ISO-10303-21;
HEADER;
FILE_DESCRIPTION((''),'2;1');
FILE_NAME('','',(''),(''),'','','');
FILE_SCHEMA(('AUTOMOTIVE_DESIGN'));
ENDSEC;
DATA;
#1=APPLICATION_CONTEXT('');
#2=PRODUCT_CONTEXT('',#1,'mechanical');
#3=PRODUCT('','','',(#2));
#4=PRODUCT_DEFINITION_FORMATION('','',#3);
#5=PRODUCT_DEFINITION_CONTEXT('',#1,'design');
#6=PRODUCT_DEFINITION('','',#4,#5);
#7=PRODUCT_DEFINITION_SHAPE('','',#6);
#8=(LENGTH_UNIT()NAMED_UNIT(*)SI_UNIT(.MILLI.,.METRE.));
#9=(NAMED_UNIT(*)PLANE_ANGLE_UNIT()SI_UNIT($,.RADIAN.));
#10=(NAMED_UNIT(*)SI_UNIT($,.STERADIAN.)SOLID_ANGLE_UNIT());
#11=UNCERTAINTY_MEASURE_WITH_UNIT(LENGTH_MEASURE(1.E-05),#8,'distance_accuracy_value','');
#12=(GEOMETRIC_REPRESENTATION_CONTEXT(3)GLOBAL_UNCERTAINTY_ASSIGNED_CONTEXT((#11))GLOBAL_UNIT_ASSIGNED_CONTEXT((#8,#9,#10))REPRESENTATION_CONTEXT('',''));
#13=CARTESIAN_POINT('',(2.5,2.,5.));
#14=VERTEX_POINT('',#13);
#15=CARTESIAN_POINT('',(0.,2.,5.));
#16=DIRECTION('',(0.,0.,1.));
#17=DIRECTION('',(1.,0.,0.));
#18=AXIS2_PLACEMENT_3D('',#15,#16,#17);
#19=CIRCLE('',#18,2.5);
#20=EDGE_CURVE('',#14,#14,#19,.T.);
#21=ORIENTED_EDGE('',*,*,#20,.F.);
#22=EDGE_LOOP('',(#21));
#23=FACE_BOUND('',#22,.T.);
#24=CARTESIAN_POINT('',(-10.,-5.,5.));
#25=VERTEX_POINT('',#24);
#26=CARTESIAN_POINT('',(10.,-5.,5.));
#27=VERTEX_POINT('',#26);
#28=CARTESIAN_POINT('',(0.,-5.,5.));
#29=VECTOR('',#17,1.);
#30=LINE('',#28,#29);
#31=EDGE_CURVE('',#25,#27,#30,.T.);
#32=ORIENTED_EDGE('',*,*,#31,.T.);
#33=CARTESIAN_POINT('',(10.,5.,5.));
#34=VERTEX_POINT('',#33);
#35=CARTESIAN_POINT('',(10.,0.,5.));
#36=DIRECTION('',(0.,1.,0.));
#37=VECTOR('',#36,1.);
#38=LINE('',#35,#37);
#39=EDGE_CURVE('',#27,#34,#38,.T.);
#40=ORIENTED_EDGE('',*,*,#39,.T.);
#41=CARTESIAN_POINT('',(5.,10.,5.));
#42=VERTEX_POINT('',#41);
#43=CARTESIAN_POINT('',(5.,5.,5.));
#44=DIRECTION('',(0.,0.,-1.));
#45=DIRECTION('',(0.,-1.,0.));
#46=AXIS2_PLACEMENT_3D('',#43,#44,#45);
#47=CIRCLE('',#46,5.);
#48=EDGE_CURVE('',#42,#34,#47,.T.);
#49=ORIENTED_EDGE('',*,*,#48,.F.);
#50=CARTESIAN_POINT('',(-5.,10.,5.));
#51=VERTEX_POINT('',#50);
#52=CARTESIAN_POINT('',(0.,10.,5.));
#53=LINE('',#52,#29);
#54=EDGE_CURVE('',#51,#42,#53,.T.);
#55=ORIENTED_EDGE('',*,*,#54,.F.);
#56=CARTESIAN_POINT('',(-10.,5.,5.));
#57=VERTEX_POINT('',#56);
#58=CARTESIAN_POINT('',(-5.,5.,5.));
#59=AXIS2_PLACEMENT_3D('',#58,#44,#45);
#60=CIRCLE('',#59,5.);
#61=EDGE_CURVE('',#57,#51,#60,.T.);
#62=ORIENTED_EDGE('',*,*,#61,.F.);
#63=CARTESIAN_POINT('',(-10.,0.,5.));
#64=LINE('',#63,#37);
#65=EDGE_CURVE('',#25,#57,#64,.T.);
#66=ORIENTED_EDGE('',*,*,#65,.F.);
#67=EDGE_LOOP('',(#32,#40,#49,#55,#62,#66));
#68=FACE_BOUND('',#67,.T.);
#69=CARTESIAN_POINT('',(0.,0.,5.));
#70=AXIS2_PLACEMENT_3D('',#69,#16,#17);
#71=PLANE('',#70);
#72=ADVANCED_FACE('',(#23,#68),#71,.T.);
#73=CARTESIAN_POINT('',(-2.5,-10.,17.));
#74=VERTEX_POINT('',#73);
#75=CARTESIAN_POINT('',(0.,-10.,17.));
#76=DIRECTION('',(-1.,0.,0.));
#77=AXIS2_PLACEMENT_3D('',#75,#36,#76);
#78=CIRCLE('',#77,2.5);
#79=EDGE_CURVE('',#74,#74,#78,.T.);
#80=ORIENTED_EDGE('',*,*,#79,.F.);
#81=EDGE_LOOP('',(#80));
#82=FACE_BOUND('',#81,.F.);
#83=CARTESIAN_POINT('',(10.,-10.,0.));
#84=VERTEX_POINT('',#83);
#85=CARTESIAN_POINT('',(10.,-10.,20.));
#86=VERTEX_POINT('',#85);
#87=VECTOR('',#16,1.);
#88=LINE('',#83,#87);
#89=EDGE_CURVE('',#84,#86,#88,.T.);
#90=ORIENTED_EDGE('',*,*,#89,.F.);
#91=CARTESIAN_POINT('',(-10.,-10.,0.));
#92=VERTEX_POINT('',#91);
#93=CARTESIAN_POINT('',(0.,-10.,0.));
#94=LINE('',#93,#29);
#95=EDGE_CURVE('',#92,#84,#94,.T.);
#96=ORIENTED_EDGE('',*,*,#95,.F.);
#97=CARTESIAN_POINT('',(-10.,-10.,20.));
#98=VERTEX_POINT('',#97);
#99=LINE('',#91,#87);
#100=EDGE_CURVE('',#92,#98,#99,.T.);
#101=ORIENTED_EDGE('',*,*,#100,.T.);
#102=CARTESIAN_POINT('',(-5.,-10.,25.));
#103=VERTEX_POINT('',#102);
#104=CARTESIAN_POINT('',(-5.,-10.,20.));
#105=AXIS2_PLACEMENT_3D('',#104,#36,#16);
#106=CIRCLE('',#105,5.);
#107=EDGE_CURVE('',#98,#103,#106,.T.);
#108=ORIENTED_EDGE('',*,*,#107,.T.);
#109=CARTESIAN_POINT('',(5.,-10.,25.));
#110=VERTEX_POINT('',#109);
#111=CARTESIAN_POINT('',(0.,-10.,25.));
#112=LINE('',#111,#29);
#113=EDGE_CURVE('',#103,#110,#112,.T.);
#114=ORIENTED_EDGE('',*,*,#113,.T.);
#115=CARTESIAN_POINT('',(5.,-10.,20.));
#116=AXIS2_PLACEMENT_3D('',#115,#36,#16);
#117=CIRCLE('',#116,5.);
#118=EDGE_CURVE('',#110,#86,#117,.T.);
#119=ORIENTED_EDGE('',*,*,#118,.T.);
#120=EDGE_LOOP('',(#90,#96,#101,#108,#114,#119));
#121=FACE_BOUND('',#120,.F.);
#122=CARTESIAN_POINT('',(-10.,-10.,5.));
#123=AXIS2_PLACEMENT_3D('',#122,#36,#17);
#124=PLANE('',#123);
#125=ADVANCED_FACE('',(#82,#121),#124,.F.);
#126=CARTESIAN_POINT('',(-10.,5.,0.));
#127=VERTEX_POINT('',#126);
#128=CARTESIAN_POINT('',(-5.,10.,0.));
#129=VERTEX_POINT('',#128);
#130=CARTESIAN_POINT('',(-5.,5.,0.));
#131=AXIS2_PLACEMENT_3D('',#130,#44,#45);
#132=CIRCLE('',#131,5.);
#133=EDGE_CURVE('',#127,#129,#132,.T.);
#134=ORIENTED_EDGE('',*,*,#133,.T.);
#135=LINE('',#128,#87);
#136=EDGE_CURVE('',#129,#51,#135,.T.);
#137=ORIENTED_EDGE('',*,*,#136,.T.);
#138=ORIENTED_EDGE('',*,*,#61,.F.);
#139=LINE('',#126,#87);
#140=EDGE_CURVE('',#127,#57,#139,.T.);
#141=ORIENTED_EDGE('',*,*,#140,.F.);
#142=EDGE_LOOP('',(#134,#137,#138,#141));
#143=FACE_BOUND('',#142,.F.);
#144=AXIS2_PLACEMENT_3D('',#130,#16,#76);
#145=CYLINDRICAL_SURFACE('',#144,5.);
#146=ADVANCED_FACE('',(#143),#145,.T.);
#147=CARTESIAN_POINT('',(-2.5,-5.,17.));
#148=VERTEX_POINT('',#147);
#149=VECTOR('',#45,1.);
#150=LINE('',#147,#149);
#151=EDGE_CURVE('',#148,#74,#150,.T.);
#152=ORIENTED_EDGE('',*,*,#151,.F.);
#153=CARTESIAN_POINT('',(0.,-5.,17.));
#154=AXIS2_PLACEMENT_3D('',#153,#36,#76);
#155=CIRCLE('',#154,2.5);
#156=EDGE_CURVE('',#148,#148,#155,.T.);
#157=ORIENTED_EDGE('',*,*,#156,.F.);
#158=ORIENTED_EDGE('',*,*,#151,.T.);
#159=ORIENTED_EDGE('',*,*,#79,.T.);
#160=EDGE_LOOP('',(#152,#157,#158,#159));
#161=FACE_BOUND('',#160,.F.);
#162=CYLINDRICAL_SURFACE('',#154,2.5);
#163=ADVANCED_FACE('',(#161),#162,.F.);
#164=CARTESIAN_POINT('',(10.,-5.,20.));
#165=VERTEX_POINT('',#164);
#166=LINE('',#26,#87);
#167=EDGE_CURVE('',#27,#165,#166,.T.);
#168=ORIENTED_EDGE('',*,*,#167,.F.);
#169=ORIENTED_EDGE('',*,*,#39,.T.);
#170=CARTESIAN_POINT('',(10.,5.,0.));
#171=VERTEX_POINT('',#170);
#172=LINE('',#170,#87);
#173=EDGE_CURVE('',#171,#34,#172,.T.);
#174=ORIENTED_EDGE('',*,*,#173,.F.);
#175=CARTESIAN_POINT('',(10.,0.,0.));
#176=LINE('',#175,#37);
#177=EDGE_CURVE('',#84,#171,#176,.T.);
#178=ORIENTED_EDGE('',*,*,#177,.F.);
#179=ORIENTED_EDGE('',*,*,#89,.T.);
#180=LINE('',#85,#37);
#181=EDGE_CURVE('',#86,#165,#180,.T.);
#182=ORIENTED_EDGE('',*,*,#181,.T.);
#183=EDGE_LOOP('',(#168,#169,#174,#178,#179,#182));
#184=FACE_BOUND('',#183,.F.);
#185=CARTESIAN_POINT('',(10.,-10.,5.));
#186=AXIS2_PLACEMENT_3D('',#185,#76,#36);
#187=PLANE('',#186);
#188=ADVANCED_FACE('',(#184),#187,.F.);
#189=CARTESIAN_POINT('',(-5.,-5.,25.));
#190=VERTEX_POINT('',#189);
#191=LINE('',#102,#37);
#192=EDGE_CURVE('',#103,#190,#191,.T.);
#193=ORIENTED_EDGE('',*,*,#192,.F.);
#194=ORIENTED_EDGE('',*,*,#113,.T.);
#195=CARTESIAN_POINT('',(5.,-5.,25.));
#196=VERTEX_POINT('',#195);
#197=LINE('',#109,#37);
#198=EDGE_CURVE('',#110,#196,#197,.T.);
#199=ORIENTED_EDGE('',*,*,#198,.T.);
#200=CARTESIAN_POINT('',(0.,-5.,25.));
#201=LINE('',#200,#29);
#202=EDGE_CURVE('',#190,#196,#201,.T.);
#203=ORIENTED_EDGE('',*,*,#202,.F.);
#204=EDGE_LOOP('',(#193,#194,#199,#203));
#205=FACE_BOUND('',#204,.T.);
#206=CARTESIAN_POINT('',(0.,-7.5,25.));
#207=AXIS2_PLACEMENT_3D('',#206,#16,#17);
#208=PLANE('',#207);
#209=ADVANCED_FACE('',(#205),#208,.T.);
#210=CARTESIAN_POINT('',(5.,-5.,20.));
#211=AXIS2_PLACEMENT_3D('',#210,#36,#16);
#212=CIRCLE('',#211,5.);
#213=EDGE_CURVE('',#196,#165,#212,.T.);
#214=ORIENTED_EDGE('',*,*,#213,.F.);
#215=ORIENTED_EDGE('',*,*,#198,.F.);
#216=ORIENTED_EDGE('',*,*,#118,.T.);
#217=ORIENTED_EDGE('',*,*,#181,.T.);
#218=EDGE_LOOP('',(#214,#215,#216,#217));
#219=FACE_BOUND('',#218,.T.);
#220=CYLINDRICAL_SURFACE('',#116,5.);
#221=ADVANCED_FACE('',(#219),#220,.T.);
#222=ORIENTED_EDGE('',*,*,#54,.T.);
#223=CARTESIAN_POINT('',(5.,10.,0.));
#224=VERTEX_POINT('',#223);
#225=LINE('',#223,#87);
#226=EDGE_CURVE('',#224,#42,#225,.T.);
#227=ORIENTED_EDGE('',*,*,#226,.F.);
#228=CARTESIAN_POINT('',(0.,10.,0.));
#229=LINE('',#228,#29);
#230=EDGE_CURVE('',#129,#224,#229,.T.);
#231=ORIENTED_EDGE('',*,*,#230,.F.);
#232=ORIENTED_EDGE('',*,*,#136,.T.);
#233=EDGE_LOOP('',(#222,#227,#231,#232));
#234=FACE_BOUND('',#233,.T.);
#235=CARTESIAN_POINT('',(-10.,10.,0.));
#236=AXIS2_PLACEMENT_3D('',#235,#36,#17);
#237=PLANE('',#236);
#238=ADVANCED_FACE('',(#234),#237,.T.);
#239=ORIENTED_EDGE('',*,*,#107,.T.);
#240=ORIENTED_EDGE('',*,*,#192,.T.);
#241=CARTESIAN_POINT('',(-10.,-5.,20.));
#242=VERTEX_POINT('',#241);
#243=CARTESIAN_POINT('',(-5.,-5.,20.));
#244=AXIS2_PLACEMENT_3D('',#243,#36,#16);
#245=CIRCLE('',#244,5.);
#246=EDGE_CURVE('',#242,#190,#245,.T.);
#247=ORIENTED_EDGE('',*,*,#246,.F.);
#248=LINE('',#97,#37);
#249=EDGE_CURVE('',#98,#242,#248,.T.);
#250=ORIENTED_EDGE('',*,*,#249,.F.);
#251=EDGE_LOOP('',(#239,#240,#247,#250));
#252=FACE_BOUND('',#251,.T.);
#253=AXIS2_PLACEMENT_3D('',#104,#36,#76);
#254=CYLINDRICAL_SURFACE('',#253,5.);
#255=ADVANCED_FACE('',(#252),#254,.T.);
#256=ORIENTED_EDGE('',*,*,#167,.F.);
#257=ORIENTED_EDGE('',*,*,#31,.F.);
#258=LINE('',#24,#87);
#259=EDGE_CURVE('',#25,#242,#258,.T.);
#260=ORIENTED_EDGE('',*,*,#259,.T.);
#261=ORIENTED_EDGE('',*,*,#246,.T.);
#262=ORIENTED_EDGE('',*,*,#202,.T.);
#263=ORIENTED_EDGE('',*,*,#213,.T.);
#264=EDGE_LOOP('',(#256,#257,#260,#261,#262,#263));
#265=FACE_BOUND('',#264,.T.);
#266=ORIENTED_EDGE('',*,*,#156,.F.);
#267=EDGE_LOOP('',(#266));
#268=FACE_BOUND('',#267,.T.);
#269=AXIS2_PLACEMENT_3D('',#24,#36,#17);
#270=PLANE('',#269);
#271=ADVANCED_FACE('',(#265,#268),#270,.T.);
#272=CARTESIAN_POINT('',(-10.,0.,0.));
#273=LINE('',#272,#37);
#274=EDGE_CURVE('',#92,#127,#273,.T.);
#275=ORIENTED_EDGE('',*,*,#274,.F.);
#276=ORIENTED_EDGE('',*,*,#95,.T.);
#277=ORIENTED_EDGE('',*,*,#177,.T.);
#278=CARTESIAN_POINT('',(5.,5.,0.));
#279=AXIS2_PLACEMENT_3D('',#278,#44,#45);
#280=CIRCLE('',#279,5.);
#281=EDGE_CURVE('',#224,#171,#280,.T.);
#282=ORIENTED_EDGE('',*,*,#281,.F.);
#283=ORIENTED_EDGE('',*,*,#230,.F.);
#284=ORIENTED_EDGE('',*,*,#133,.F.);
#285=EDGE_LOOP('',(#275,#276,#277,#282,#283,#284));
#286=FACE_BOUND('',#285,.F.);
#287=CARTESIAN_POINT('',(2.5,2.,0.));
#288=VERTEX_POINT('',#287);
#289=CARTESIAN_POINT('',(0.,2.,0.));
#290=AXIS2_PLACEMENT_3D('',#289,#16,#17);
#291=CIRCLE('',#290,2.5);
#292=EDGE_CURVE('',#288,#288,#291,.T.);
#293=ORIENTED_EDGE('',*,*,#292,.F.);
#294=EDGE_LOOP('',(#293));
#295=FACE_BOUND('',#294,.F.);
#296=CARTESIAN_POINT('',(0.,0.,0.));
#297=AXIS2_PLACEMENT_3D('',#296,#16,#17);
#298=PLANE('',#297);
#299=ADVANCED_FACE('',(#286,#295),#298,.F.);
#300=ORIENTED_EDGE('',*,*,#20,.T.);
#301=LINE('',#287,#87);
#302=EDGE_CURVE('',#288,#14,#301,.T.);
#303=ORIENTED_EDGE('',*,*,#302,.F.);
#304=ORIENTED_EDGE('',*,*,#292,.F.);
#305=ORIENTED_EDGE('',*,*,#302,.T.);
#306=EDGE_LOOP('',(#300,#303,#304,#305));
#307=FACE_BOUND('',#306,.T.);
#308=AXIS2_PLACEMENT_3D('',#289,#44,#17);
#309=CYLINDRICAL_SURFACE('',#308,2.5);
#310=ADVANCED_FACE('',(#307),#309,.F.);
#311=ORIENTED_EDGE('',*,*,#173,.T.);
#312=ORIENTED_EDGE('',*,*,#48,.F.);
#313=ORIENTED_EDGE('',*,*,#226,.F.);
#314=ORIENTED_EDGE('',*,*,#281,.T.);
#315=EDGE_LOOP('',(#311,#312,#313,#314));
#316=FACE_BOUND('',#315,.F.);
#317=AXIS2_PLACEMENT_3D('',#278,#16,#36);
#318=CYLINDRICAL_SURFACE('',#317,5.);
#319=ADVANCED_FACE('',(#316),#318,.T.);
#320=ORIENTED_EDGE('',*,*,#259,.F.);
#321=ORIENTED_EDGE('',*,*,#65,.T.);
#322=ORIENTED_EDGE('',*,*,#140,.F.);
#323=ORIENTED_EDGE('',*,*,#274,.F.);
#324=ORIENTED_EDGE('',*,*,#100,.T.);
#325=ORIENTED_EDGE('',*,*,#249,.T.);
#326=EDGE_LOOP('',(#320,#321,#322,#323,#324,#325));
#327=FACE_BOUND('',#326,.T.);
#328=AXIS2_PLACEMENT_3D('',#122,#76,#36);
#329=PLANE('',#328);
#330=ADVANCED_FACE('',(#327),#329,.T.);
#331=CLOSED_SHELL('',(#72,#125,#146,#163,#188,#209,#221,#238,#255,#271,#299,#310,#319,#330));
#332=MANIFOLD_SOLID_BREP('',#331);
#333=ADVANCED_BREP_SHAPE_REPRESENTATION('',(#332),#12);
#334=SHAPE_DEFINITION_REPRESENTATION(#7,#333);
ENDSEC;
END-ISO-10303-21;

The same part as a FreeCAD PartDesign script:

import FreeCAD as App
import Part
import Sketcher

V = App.Vector
Q = App.Units.Quantity


def edges_at(feature, points):
    """Names of the edges that pass closest to the given points."""
    edges = feature.Shape.Edges
    near = lambda p: min(range(len(edges)), key=lambda i: edges[i].distToShape(Part.Vertex(*p))[0])
    return sorted({f"Edge{near(p) + 1}" for p in points})

doc = App.newDocument("Part")
params = doc.addObject("Spreadsheet::Sheet", "Params")
for row, (alias, value) in enumerate([
    ("sketch1_diameter", "5 mm"),
    ("sketch1_width", "20 mm"),
    ("pad1_length", "5 mm"),
    ("sketch2_width", "20 mm"),
    ("sketch2_height", "5 mm"),
    ("pad2_length", "20 mm"),
    ("sketch3_diameter", "5 mm"),
    ("fillet_radius", "5 mm"),
], start=1):
    params.set(f"A{row}", alias)
    params.set(f"B{row}", "=" + value)
    params.setAlias(f"B{row}", alias)

body = doc.addObject("PartDesign::Body", "Body")

sketch1 = doc.addObject("Sketcher::SketchObject", "Sketch")
body.addObject(sketch1)
sketch1.AttachmentSupport = (doc.XY_Plane, [""])
sketch1.MapMode = "FlatFace"
sketch1.addGeometry([
    Part.LineSegment(V(-10, 10, 0), V(-10, -10, 0)),
    Part.LineSegment(V(-10, -10, 0), V(10, -10, 0)),
    Part.LineSegment(V(10, -10, 0), V(10, 10, 0)),
    Part.LineSegment(V(10, 10, 0), V(-10, 10, 0)),
    Part.Circle(V(0, 2, 0), V(0, 0, 1), 2.5),
], False)
sketch1.addConstraint([
    Sketcher.Constraint("Coincident", 0, 2, 1, 1),
    Sketcher.Constraint("Coincident", 1, 2, 2, 1),
    Sketcher.Constraint("Coincident", 2, 2, 3, 1),
    Sketcher.Constraint("Coincident", 3, 2, 0, 1),
    Sketcher.Constraint("Vertical", 0),
    Sketcher.Constraint("Horizontal", 1),
    Sketcher.Constraint("Vertical", 2),
    Sketcher.Constraint("Horizontal", 3),
    Sketcher.Constraint("Symmetric", 0, 2, 2, 2, -1, 1),
    Sketcher.Constraint("PointOnObject", 4, 3, -2),
    Sketcher.Constraint("Equal", 3, 0),
    Sketcher.Constraint("Diameter", 4, Q("5 mm")),
    Sketcher.Constraint("DistanceX", 1, 1, 1, 2, Q("20 mm")),
    Sketcher.Constraint("DistanceY", -1, 1, 4, 3, Q("2 mm")),
])
sketch1.setExpression("Constraints[11]", "Params.sketch1_diameter")
sketch1.setExpression("Constraints[12]", "Params.sketch1_width")
pad1 = doc.addObject("PartDesign::Pad", "Pad")
body.addObject(pad1)
pad1.Profile = sketch1
pad1.setExpression("Length", "Params.pad1_length")

sketch2 = doc.addObject("Sketcher::SketchObject", "Sketch001")
body.addObject(sketch2)
sketch2.AttachmentSupport = (doc.XY_Plane, [""])
sketch2.MapMode = "FlatFace"
sketch2.AttachmentOffset = App.Placement(V(0, 0, 5), App.Rotation())
sketch2.addGeometry([
    Part.LineSegment(V(-10, -5, 0), V(-10, -10, 0)),
    Part.LineSegment(V(-10, -10, 0), V(10, -10, 0)),
    Part.LineSegment(V(10, -10, 0), V(10, -5, 0)),
    Part.LineSegment(V(10, -5, 0), V(-10, -5, 0)),
], False)
sketch2.addConstraint([
    Sketcher.Constraint("Coincident", 0, 2, 1, 1),
    Sketcher.Constraint("Coincident", 1, 2, 2, 1),
    Sketcher.Constraint("Coincident", 2, 2, 3, 1),
    Sketcher.Constraint("Coincident", 3, 2, 0, 1),
    Sketcher.Constraint("Vertical", 0),
    Sketcher.Constraint("Horizontal", 1),
    Sketcher.Constraint("Vertical", 2),
    Sketcher.Constraint("Horizontal", 3),
    Sketcher.Constraint("DistanceX", 1, 1, 1, 2, Q("20 mm")),
    Sketcher.Constraint("DistanceY", 0, 2, 0, 1, Q("5 mm")),
    Sketcher.Constraint("DistanceX", 0, 2, -1, 1, Q("10 mm")),
    Sketcher.Constraint("DistanceY", 0, 2, -1, 1, Q("10 mm")),
])
sketch2.setExpression("Constraints[8]", "Params.sketch2_width")
sketch2.setExpression("Constraints[9]", "Params.sketch2_height")
pad2 = doc.addObject("PartDesign::Pad", "Pad001")
body.addObject(pad2)
pad2.Profile = sketch2
pad2.setExpression("Length", "Params.pad2_length")

sketch3 = doc.addObject("Sketcher::SketchObject", "Sketch002")
body.addObject(sketch3)
sketch3.AttachmentSupport = (doc.XZ_Plane, [""])
sketch3.MapMode = "FlatFace"
sketch3.AttachmentOffset = App.Placement(V(0, 0, 5), App.Rotation())
sketch3.addGeometry(Part.Circle(V(0, 17, 0), V(0, 0, 1), 2.5), False)
sketch3.addConstraint([
    Sketcher.Constraint("PointOnObject", 0, 3, -2),
    Sketcher.Constraint("Diameter", 0, Q("5 mm")),
    Sketcher.Constraint("DistanceY", -1, 1, 0, 3, Q("17 mm")),
])
sketch3.setExpression("Constraints[1]", "Params.sketch3_diameter")
pocket1 = doc.addObject("PartDesign::Pocket", "Pocket")
body.addObject(pocket1)
pocket1.Profile = sketch3
pocket1.Type = "ThroughAll"
pocket1.Reversed = True
doc.recompute()

fillet = doc.addObject("PartDesign::Fillet", "Fillet")
body.addObject(fillet)
fillet.Base = (pocket1, edges_at(pocket1, [
    (-10, -7.5, 25),
    (10, -7.5, 25),
    (10, 10, 2.5),
    (-10, 10, 2.5),
]))
fillet.setExpression("Radius", "Params.fillet_radius")

doc.recompute()
